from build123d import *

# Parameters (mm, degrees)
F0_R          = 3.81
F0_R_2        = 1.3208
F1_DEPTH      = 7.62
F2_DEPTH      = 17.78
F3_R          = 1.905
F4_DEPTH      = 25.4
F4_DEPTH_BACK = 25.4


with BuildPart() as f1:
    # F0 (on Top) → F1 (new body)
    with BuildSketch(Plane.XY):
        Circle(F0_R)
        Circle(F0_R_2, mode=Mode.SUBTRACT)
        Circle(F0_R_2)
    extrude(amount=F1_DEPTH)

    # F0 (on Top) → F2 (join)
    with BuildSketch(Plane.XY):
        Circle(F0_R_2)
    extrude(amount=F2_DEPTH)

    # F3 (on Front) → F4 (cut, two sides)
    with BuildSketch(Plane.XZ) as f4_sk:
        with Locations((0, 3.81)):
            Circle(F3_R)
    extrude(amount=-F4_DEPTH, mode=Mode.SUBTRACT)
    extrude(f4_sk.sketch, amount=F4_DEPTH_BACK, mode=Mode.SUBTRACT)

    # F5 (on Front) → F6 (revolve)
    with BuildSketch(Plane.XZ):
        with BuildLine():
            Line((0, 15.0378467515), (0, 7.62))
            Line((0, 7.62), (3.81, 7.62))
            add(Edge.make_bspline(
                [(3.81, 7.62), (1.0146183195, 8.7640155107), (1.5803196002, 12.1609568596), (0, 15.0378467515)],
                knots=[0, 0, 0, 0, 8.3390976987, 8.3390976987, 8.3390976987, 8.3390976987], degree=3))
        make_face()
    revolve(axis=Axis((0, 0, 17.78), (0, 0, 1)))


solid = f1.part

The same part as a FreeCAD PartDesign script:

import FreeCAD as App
import Part
import Sketcher
from FreeCAD import Vector
Q = App.Units.Quantity

doc = App.newDocument("Part")
params = doc.addObject("Spreadsheet::Sheet", "Params")
for row, (alias, value) in enumerate([
    ("sketch1_diameter", "0.3 in"),
    ("pad1_length", "0.3 in"),
    ("sketch2_diameter", "0.104 in"),
    ("pad2_length", "0.7 in"),
    ("sketch3_diameter", "0.15 in"),
    ("revolution_angle", "360 deg"),
], start=1):
    params.set(f"A{row}", alias)
    params.set(f"B{row}", "=" + value)
    params.setAlias(f"B{row}", alias)

body = doc.addObject("PartDesign::Body", "Body")

# Sketch on XY plane
sketch1 = body.newObject("Sketcher::SketchObject", "Sketch")
sketch1.AttachmentSupport = (doc.getObject("XY_Plane"), [""])
sketch1.MapMode = "FlatFace"
sketch1.addGeometry(Part.Circle(Vector(0, 0, 0), Vector(0, 0, 1), 3.8), False)
sketch1.addConstraint([
    Sketcher.Constraint("Coincident", 0, 3, -1, 1),
    Sketcher.Constraint("Diameter", 0, Q("0.3 in")),
])
sketch1.setExpression("Constraints[1]", "Params.sketch1_diameter")
pad1 = body.newObject("PartDesign::Pad", "Pad")
pad1.Profile = sketch1
pad1.setExpression("Length", "Params.pad1_length")

# Sketch on XY plane
sketch2 = body.newObject("Sketcher::SketchObject", "Sketch001")
sketch2.AttachmentSupport = (doc.getObject("XY_Plane"), [""])
sketch2.MapMode = "FlatFace"
sketch2.addGeometry(Part.Circle(Vector(0, 0, 0), Vector(0, 0, 1), 1.3), False)
sketch2.addConstraint([
    Sketcher.Constraint("Coincident", 0, 3, -1, 1),
    Sketcher.Constraint("Diameter", 0, Q("0.104 in")),
])
sketch2.setExpression("Constraints[1]", "Params.sketch2_diameter")
pad2 = body.newObject("PartDesign::Pad", "Pad001")
pad2.Profile = sketch2
pad2.setExpression("Length", "Params.pad2_length")

# Sketch on XZ plane
sketch3 = body.newObject("Sketcher::SketchObject", "Sketch002")
sketch3.AttachmentSupport = (doc.getObject("XZ_Plane"), [""])
sketch3.MapMode = "FlatFace"
sketch3.addGeometry(Part.Circle(Vector(0, 3.8, 0), Vector(0, 0, 1), 1.9), False)
sketch3.addConstraint([
    Sketcher.Constraint("PointOnObject", 0, 3, -2),
    Sketcher.Constraint("Diameter", 0, Q("0.15 in")),
    Sketcher.Constraint("DistanceY", -1, 1, 0, 3, Q("0.15 in")),
])
sketch3.setExpression("Constraints[1]", "Params.sketch3_diameter")
pocket1 = body.newObject("PartDesign::Pocket", "Pocket")
pocket1.Profile = sketch3
pocket1.Type = "ThroughAll"
pocket1.Midplane = True

# Sketch on XZ plane
sketch4 = body.newObject("Sketcher::SketchObject", "Sketch003")
sketch4.AttachmentSupport = (doc.getObject("XZ_Plane"), [""])
sketch4.MapMode = "FlatFace"
sketch4.addGeometry([
    Part.LineSegment(Vector(0, 15.037847, 0), Vector(0, 7.62, 0)),
    Part.LineSegment(Vector(0, 7.62, 0), Vector(3.81, 7.62, 0)),
    Part.BSplineCurve([Vector(3.81, 7.62, 0), Vector(1.014618, 8.764016, 0), Vector(1.58032, 12.160957, 0), Vector(0, 15.037847, 0)], [4, 4], [0, 8.339097699], False, 3, [1, 1, 1, 1], False),
], False)
sketch4.addConstraint([
    Sketcher.Constraint("Block", 2),
    Sketcher.Constraint("Coincident", 0, 2, 1, 1),
    Sketcher.Constraint("Coincident", 1, 2, 2, 1),
    Sketcher.Constraint("Coincident", 2, 2, 0, 1),
    Sketcher.Constraint("Vertical", 0),
    Sketcher.Constraint("Horizontal", 1),
])
revolution = body.newObject("PartDesign::Revolution", "Revolution")
revolution.Profile = sketch4
revolution.ReferenceAxis = (sketch4, ["V_Axis"])
revolution.setExpression("Angle", "Params.revolution_angle")

doc.recompute()
